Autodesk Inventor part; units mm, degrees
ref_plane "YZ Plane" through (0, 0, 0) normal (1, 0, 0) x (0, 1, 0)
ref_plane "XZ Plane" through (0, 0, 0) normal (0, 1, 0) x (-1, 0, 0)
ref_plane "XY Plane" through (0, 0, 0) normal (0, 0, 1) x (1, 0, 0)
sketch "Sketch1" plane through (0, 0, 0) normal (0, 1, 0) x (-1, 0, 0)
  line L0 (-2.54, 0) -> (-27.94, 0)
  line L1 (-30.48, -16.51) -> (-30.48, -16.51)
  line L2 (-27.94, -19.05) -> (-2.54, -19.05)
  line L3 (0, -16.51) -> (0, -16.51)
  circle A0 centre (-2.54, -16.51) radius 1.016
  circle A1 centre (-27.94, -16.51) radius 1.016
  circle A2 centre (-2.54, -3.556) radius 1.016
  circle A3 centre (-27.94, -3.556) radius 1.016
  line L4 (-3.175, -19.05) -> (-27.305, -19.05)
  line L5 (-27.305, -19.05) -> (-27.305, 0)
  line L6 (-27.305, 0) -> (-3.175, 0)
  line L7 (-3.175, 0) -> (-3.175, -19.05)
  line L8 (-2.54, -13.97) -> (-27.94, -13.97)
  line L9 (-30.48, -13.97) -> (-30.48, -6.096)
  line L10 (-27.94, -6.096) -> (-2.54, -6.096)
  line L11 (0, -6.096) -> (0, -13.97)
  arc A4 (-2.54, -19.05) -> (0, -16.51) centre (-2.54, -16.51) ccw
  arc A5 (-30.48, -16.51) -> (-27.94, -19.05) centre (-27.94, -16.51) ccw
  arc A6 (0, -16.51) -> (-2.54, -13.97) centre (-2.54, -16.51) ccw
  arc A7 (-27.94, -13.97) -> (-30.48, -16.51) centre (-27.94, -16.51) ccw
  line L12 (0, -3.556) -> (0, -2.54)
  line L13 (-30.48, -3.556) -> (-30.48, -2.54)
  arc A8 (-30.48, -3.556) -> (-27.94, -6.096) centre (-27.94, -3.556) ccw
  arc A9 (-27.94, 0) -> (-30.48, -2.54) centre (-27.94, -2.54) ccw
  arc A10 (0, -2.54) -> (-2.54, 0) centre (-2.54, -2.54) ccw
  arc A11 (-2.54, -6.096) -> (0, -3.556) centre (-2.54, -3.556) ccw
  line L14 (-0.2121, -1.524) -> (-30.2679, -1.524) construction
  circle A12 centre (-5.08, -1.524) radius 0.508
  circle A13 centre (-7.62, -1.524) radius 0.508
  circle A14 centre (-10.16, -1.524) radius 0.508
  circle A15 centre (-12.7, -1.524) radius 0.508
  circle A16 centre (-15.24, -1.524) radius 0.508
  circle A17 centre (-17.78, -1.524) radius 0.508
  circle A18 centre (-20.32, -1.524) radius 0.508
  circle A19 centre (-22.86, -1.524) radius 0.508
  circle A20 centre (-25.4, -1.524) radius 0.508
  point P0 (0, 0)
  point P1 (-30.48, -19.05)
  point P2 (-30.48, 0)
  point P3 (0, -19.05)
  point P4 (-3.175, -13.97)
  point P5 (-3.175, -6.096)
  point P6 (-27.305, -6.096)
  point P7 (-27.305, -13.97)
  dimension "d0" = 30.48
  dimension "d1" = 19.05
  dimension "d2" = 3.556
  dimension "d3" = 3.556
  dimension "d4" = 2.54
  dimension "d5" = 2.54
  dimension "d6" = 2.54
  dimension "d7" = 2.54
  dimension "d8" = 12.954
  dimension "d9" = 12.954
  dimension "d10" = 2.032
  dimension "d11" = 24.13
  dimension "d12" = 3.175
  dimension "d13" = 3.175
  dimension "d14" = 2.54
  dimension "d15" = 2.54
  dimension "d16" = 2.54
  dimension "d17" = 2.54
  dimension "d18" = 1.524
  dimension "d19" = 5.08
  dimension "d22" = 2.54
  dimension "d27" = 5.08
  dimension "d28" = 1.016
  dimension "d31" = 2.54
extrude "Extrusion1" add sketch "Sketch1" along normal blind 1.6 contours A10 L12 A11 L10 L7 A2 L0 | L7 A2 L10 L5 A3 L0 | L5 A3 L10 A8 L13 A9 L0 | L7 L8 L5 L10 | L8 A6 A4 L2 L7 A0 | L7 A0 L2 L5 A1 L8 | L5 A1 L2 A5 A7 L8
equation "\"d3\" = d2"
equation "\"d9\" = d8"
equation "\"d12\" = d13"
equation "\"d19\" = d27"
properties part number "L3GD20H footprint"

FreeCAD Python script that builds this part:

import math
import FreeCAD as App
import Part
import Sketcher

V = App.Vector
Q = App.Units.Quantity

doc = App.newDocument("Part")
body = doc.addObject("PartDesign::Body", "Body")

# Sketch on XZ plane
sketch1 = body.newObject("Sketcher::SketchObject", "Sketch")
sketch1.AttachmentSupport = (doc.getObject("XZ_Plane"), [""])
sketch1.MapMode = "FlatFace"
sketch1.addGeometry([
    Part.ArcOfCircle(Part.Circle(V(2.54, -2.54, 0), V(0, 0, 1), 2.54), math.radians(90), math.radians(180)),  # 0
    Part.LineSegment(V(2.54, 0, 0), V(27.94, 0, 0)),  # 1
    Part.ArcOfCircle(Part.Circle(V(27.94, -2.54, 0), V(0, 0, 1), 2.54), math.radians(0), math.radians(90)),  # 2
    Part.LineSegment(V(30.48, -2.54, 0), V(30.48, -3.556, 0)),  # 3
    Part.ArcOfCircle(Part.Circle(V(27.94, -3.556, 0), V(0, 0, 1), 2.54), math.radians(-90), math.radians(0)),  # 4
    Part.LineSegment(V(27.94, -6.096, 0), V(27.305, -6.096, 0)),  # 5
    Part.LineSegment(V(27.305, -6.096, 0), V(27.305, -13.97, 0)),  # 6
    Part.LineSegment(V(27.305, -13.97, 0), V(27.94, -13.97, 0)),  # 7
    Part.ArcOfCircle(Part.Circle(V(27.94, -16.51, 0), V(0, 0, 1), 2.54), math.radians(-90), math.radians(90)),  # 8
    Part.LineSegment(V(27.94, -19.05, 0), V(2.54, -19.05, 0)),  # 9
    Part.ArcOfCircle(Part.Circle(V(2.54, -16.51, 0), V(0, 0, 1), 2.54), math.radians(90), math.radians(270)),  # 10
    Part.LineSegment(V(2.54, -13.97, 0), V(3.175, -13.97, 0)),  # 11
    Part.LineSegment(V(3.175, -13.97, 0), V(3.175, -6.096, 0)),  # 12
    Part.LineSegment(V(3.175, -6.096, 0), V(2.54, -6.096, 0)),  # 13
    Part.ArcOfCircle(Part.Circle(V(2.54, -3.556, 0), V(0, 0, 1), 2.54), math.radians(180), math.radians(270)),  # 14
    Part.LineSegment(V(0, -3.556, 0), V(0, -2.54, 0)),  # 15
    Part.Circle(V(2.54, -3.556, 0), V(0, 0, 1), 1.016),  # 16
    Part.Circle(V(7.62, -1.524, 0), V(0, 0, 1), 0.508),  # 17
    Part.Circle(V(5.08, -1.524, 0), V(0, 0, 1), 0.508),  # 18
    Part.Circle(V(27.94, -3.556, 0), V(0, 0, 1), 1.016),  # 19
    Part.Circle(V(25.4, -1.524, 0), V(0, 0, 1), 0.508),  # 20
    Part.Circle(V(22.86, -1.524, 0), V(0, 0, 1), 0.508),  # 21
    Part.Circle(V(20.32, -1.524, 0), V(0, 0, 1), 0.508),  # 22
    Part.Circle(V(17.78, -1.524, 0), V(0, 0, 1), 0.508),  # 23
    Part.Circle(V(15.24, -1.524, 0), V(0, 0, 1), 0.508),  # 24
    Part.Circle(V(12.7, -1.524, 0), V(0, 0, 1), 0.508),  # 25
    Part.Circle(V(10.16, -1.524, 0), V(0, 0, 1), 0.508),  # 26
    Part.Circle(V(2.54, -16.51, 0), V(0, 0, 1), 1.016),  # 27
    Part.Circle(V(27.94, -16.51, 0), V(0, 0, 1), 1.016),  # 28
], False)
sketch1.addConstraint([
    Sketcher.Constraint("Tangent", 0, 1, 1, 1),
    Sketcher.Constraint("Tangent", 1, 2, 2, 2),
    Sketcher.Constraint("Tangent", 2, 1, 3, 1),
    Sketcher.Constraint("Tangent", 3, 2, 4, 2),
    Sketcher.Constraint("Tangent", 4, 1, 5, 1),
    Sketcher.Constraint("Coincident", 5, 2, 6, 1),
    Sketcher.Constraint("Coincident", 6, 2, 7, 1),
    Sketcher.Constraint("Tangent", 7, 2, 8, 2),
    Sketcher.Constraint("Tangent", 8, 1, 9, 1),
    Sketcher.Constraint("Tangent", 9, 2, 10, 2),
    Sketcher.Constraint("Tangent", 10, 1, 11, 1),
    Sketcher.Constraint("Coincident", 11, 2, 12, 1),
    Sketcher.Constraint("Coincident", 12, 2, 13, 1),
    Sketcher.Constraint("Tangent", 13, 2, 14, 2),
    Sketcher.Constraint("Tangent", 14, 1, 15, 1),
    Sketcher.Constraint("Tangent", 15, 2, 0, 2),
    Sketcher.Constraint("Horizontal", 1),
    Sketcher.Constraint("Vertical", 3),
    Sketcher.Constraint("Horizontal", 5),
    Sketcher.Constraint("Vertical", 6),
    Sketcher.Constraint("Horizontal", 7),
    Sketcher.Constraint("Horizontal", 9),
    Sketcher.Constraint("Horizontal", 11),
    Sketcher.Constraint("Vertical", 12),
    Sketcher.Constraint("Horizontal", 13),
    Sketcher.Constraint("Vertical", 15),
    Sketcher.Constraint("Coincident", 16, 3, 14, 3),
    Sketcher.Constraint("Coincident", 19, 3, 4, 3),
    Sketcher.Constraint("Coincident", 27, 3, 10, 3),
    Sketcher.Constraint("Coincident", 28, 3, 8, 3),
    Sketcher.Constraint("Equal", 0, 2),
    Sketcher.Constraint("Equal", 2, 4),
    Sketcher.Constraint("Equal", 4, 8),
    Sketcher.Constraint("Equal", 8, 10),
    Sketcher.Constraint("Equal", 10, 14),
    Sketcher.Constraint("Equal", 17, 18),
    Sketcher.Constraint("Equal", 16, 19),
    Sketcher.Constraint("Equal", 18, 20),
    Sketcher.Constraint("Equal", 20, 21),
    Sketcher.Constraint("Equal", 21, 22),
    Sketcher.Constraint("Equal", 22, 23),
    Sketcher.Constraint("Equal", 23, 24),
    Sketcher.Constraint("Equal", 24, 25),
    Sketcher.Constraint("Equal", 25, 26),
    Sketcher.Constraint("Equal", 19, 27),
    Sketcher.Constraint("Equal", 27, 28),
    Sketcher.Constraint("PointOnObject", 0, 1, -1),
    Sketcher.Constraint("PointOnObject", 14, 1, -2),
    Sketcher.Constraint("Horizontal", 4, 3, 14, 3),
    Sketcher.Constraint("Horizontal", 17, 3, 18, 3),
    Sketcher.Constraint("Horizontal", 18, 3, 20, 3),
    Sketcher.Constraint("Horizontal", 20, 3, 21, 3),
    Sketcher.Constraint("Horizontal", 21, 3, 22, 3),
    Sketcher.Constraint("Horizontal", 22, 3, 23, 3),
    Sketcher.Constraint("Horizontal", 23, 3, 24, 3),
    Sketcher.Constraint("Horizontal", 24, 3, 25, 3),
    Sketcher.Constraint("Horizontal", 25, 3, 26, 3),
    Sketcher.Constraint("Vertical", 4, 3, 8, 3),
    Sketcher.Constraint("Vertical", 0, 3, 10, 3),
    Sketcher.Constraint("Equal", 7, 11),
    Sketcher.Constraint("Radius", 0, Q("0.1 in")),
    Sketcher.Constraint("Diameter", 16, Q("0.08 in")),
    Sketcher.Constraint("Diameter", 17, Q("0.04 in")),
    Sketcher.Constraint("DistanceX", 1, 1, 1, 2, Q("1 in")),
    Sketcher.Constraint("DistanceX", -1, 1, 20, 3, Q("1 in")),
    Sketcher.Constraint("DistanceY", 3, 2, 3, 1, Q("0.04 in")),
    Sketcher.Constraint("DistanceX", -1, 1, 18, 3, Q("0.2 in")),
    Sketcher.Constraint("DistanceX", 0, 3, 17, 3, Q("0.2 in")),
    Sketcher.Constraint("DistanceX", 21, 3, 20, 3, Q("0.1 in")),
    Sketcher.Constraint("DistanceX", 22, 3, 21, 3, Q("0.1 in")),
    Sketcher.Constraint("DistanceX", 23, 3, 22, 3, Q("0.1 in")),
    Sketcher.Constraint("DistanceX", 24, 3, 23, 3, Q("0.1 in")),
    Sketcher.Constraint("DistanceX", 25, 3, 24, 3, Q("0.1 in")),
    Sketcher.Constraint("DistanceX", 26, 3, 25, 3, Q("0.1 in")),
    Sketcher.Constraint("DistanceY", 17, 3, -1, 1, Q("0.06 in")),
    Sketcher.Constraint("DistanceY", 8, 1, -1, 1, Q("0.75 in")),
    Sketcher.Constraint("DistanceX", -1, 1, 11, 2, Q("0.125 in")),
])
pad1 = body.newObject("PartDesign::Pad", "Pad")
pad1.Profile = sketch1
pad1.Length = Q("0.0629921 in")
pad1.Reversed = True

doc.recompute()
